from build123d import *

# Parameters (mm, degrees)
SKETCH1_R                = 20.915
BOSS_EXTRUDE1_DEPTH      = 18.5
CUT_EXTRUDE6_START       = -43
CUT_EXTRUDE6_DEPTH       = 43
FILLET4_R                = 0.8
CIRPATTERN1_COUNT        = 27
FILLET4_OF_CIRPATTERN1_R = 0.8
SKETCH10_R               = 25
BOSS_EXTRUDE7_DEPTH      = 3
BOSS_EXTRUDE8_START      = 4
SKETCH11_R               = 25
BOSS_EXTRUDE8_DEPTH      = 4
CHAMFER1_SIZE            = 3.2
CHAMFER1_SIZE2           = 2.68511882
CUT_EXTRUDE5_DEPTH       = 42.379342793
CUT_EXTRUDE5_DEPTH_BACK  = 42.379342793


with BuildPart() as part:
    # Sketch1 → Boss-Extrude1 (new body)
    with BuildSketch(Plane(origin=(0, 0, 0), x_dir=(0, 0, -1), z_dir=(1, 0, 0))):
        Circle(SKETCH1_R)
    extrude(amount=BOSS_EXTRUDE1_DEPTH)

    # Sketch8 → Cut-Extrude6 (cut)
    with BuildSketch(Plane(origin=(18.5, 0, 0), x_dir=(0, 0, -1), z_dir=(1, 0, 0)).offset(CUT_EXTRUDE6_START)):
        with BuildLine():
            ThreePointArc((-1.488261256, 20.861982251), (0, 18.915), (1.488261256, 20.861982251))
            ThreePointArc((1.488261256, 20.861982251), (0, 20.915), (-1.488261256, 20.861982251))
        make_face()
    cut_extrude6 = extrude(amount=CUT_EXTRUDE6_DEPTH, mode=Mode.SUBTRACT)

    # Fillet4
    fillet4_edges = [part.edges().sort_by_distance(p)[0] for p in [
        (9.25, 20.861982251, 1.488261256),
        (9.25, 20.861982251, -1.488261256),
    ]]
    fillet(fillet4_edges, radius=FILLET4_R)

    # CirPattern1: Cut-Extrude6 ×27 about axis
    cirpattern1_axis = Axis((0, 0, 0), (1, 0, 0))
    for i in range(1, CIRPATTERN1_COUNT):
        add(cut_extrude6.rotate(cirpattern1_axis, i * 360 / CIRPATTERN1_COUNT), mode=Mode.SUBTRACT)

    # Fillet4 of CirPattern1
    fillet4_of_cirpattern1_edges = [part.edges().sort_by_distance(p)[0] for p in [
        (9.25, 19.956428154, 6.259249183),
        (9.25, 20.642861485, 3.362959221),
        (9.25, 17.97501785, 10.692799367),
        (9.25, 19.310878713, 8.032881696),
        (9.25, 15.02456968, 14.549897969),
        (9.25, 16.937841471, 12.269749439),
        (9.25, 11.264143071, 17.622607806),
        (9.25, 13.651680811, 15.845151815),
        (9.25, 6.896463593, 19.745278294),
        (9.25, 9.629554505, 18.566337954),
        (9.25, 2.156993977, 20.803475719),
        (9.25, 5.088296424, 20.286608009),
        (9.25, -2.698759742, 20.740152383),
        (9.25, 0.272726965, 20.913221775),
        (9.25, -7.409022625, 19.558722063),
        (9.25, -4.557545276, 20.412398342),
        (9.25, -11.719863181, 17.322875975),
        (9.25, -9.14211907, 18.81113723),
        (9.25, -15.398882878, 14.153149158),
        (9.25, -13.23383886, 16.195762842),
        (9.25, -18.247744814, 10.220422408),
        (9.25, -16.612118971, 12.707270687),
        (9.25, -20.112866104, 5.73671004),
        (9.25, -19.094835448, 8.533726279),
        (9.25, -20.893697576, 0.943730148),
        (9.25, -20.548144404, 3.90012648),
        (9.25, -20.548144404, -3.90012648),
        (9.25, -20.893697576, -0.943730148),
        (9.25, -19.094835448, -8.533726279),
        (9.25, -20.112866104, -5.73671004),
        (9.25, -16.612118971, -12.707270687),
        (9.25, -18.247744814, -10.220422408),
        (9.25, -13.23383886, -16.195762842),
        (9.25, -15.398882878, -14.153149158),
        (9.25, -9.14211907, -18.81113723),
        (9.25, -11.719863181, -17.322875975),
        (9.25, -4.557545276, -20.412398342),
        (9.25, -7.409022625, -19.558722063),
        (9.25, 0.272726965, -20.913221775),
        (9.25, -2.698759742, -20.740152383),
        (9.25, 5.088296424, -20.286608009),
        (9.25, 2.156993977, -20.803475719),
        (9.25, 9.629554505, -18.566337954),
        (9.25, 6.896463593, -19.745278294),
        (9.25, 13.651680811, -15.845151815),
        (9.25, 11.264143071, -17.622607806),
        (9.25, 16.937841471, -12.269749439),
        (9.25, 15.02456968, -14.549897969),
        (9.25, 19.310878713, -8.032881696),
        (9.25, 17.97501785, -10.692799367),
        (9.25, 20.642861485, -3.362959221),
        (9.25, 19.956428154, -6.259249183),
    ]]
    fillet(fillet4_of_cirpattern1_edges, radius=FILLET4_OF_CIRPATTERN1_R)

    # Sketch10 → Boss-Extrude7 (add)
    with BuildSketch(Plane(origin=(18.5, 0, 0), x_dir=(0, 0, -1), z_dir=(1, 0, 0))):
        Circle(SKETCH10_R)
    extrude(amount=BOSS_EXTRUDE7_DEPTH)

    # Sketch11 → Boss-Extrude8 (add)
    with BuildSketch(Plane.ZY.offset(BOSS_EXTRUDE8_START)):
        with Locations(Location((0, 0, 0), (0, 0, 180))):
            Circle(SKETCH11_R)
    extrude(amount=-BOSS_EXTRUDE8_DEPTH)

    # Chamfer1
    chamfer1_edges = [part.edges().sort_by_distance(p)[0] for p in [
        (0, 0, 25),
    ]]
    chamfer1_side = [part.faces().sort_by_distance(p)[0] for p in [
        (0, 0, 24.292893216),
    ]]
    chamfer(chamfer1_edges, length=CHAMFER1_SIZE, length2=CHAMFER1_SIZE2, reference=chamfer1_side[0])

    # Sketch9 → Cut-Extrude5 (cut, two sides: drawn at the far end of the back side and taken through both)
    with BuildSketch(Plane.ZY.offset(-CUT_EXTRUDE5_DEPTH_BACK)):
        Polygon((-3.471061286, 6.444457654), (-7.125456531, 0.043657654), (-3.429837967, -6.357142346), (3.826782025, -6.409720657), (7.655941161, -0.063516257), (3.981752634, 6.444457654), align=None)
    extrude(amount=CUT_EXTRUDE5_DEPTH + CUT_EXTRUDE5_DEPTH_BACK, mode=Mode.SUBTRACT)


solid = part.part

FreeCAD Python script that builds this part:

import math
import FreeCAD as App
import Part
import Sketcher

V = App.Vector
Q = App.Units.Quantity


def edges_at(feature, points):
    """Names of the edges that pass closest to the given points."""
    edges = feature.Shape.Edges
    near = lambda p: min(range(len(edges)), key=lambda i: edges[i].distToShape(Part.Vertex(*p))[0])
    return sorted({f"Edge{near(p) + 1}" for p in points})

doc = App.newDocument("Part")
body = doc.addObject("PartDesign::Body", "Body")

# Sketch on YZ plane
sketch1 = body.newObject("Sketcher::SketchObject", "Sketch")
sketch1.AttachmentSupport = (doc.getObject("YZ_Plane"), [""])
sketch1.MapMode = "FlatFace"
sketch1.addGeometry(Part.Circle(V(0, 0, 0), V(0, 0, 1), 21), False)
sketch1.addConstraint([
    Sketcher.Constraint("Coincident", 0, 3, -1, 1),
    Sketcher.Constraint("Diameter", 0, Q("41.83 mm")),
])
pad1 = body.newObject("PartDesign::Pad", "Pad")
pad1.Profile = sketch1
pad1.Length = 18.5

# Sketch on YZ plane
sketch2 = body.newObject("Sketcher::SketchObject", "Sketch001")
sketch2.AttachmentSupport = (doc.getObject("YZ_Plane"), [""])
sketch2.MapMode = "FlatFace"
sketch2.AttachmentOffset = App.Placement(V(0, 0, -24.5), App.Rotation())
sketch2.addGeometry([
    Part.ArcOfCircle(Part.Circle(V(20.5, 0, 0), V(0, 0, 1), 1.5), math.radians(75), math.radians(285)),
    Part.ArcOfCircle(Part.Circle(V(0, 0, 0), V(0, 0, 1), 20.9), math.radians(-4.08), math.radians(4.08)),
], False)
sketch2.addConstraint([
    Sketcher.Constraint("Coincident", 0, 1, 1, 2),
    Sketcher.Constraint("Coincident", 1, 1, 0, 2),
    Sketcher.Constraint("Coincident", 1, 3, -1, 1),
    Sketcher.Constraint("PointOnObject", 0, 3, -1),
    Sketcher.Constraint("Radius", 1, Q("20.915 mm")),
    Sketcher.Constraint("Radius", 0, Q("1.5423 mm")),
    Sketcher.Constraint("DistanceX", -1, 1, 0, 3, Q("20.4573 mm")),
])
pocket1 = body.newObject("PartDesign::Pocket", "Pocket")
pocket1.Profile = sketch2
pocket1.Length = 43
pocket1.Reversed = True
doc.recompute()

fillet = body.newObject("PartDesign::Fillet", "Fillet")
fillet.Base = (pocket1, edges_at(pocket1, [(9.25, 20.862, 1.488), (9.25, 20.862, -1.488)]))
fillet.Radius = 0.8
doc.recompute()

polarpattern = body.newObject("PartDesign::PolarPattern", "PolarPattern")
polarpattern.Originals = [pocket1]
polarpattern.Axis = (doc.getObject("X_Axis"), [""])
polarpattern.Angle = 360
polarpattern.Occurrences = 27
body.Tip = polarpattern
doc.recompute()

fillet2 = body.newObject("PartDesign::Fillet", "Fillet001")
fillet2.Base = (polarpattern, edges_at(polarpattern, [
    (9.25, 19.956, 6.259),
    (9.25, 20.643, 3.363),
    (9.25, 17.975, 10.693),
    (9.25, 19.311, 8.033),
    (9.25, 15.025, 14.55),
    (9.25, 16.938, 12.27),
    (9.25, 11.264, 17.623),
    (9.25, 13.652, 15.845),
    (9.25, 6.896, 19.745),
    (9.25, 9.63, 18.566),
    (9.25, 2.157, 20.803),
    (9.25, 5.088, 20.287),
    (9.25, -2.699, 20.74),
    (9.25, 0.273, 20.913),
    (9.25, -7.409, 19.559),
    (9.25, -4.558, 20.412),
    (9.25, -11.72, 17.323),
    (9.25, -9.142, 18.811),
    (9.25, -15.399, 14.153),
    (9.25, -13.234, 16.196),
    (9.25, -18.248, 10.22),
    (9.25, -16.612, 12.707),
    (9.25, -20.113, 5.737),
    (9.25, -19.095, 8.534),
    (9.25, -20.894, 0.944),
    (9.25, -20.548, 3.9),
    (9.25, -20.548, -3.9),
    (9.25, -20.894, -0.944),
    (9.25, -19.095, -8.534),
    (9.25, -20.113, -5.737),
    (9.25, -16.612, -12.707),
    (9.25, -18.248, -10.22),
    (9.25, -13.234, -16.196),
    (9.25, -15.399, -14.153),
    (9.25, -9.142, -18.811),
    (9.25, -11.72, -17.323),
    (9.25, -4.558, -20.412),
    (9.25, -7.409, -19.559),
    (9.25, 0.273, -20.913),
    (9.25, -2.699, -20.74),
    (9.25, 5.088, -20.287),
    (9.25, 2.157, -20.803),
    (9.25, 9.63, -18.566),
    (9.25, 6.896, -19.745),
    (9.25, 13.652, -15.845),
    (9.25, 11.264, -17.623),
    (9.25, 16.938, -12.27),
    (9.25, 15.025, -14.55),
    (9.25, 19.311, -8.033),
    (9.25, 17.975, -10.693),
    (9.25, 20.643, -3.363),
    (9.25, 19.956, -6.259),
]))
fillet2.Radius = 0.8

# Sketch on YZ plane
sketch3 = body.newObject("Sketcher::SketchObject", "Sketch002")
sketch3.AttachmentSupport = (doc.getObject("YZ_Plane"), [""])
sketch3.MapMode = "FlatFace"
sketch3.AttachmentOffset = App.Placement(V(0, 0, 18.5), App.Rotation())
sketch3.addGeometry(Part.Circle(V(0, 0, 0), V(0, 0, 1), 25), False)
sketch3.addConstraint([
    Sketcher.Constraint("Coincident", 0, 3, -1, 1),
    Sketcher.Constraint("Diameter", 0, Q("50 mm")),
])
pad2 = body.newObject("PartDesign::Pad", "Pad001")
pad2.Profile = sketch3
pad2.Length = 3

# Sketch on YZ plane
sketch4 = body.newObject("Sketcher::SketchObject", "Sketch003")
sketch4.AttachmentSupport = (doc.getObject("YZ_Plane"), [""])
sketch4.MapMode = "FlatFace"
sketch4.AttachmentOffset = App.Placement(V(0, 0, -4), App.Rotation())
sketch4.addGeometry(Part.Circle(V(0, 0, 0), V(0, 0, 1), 25), False)
sketch4.addConstraint([
    Sketcher.Constraint("Coincident", 0, 3, -1, 1),
    Sketcher.Constraint("Diameter", 0, Q("50 mm")),
])
pad3 = body.newObject("PartDesign::Pad", "Pad002")
pad3.Profile = sketch4
pad3.Length = 4
doc.recompute()

chamfer = body.newObject("PartDesign::Chamfer", "Chamfer")
chamfer.Base = (pad3, edges_at(pad3, [(0, 0, 25)]))
chamfer.ChamferType = "Two distances"
chamfer.Size = 3.2
chamfer.Size2 = 2.685119

# Sketch on YZ plane
sketch5 = body.newObject("Sketcher::SketchObject", "Sketch004")
sketch5.AttachmentSupport = (doc.getObject("YZ_Plane"), [""])
sketch5.MapMode = "FlatFace"
sketch5.addGeometry([
    Part.LineSegment(V(6, -3, 0), V(0, -7, 0)),  # 0
    Part.LineSegment(V(0, -7, 0), V(-6, -3, 0)),  # 1
    Part.LineSegment(V(-6, -3, 0), V(-6, 4, 0)),  # 2
    Part.LineSegment(V(-6, 4, 0), V(0, 8, 0)),  # 3
    Part.LineSegment(V(0, 8, 0), V(6, 4, 0)),  # 4
    Part.LineSegment(V(6, 4, 0), V(6, -3, 0)),  # 5
], False)
sketch5.addConstraint([
    Sketcher.Constraint("Coincident", 0, 2, 1, 1),
    Sketcher.Constraint("Coincident", 1, 2, 2, 1),
    Sketcher.Constraint("Coincident", 2, 2, 3, 1),
    Sketcher.Constraint("Coincident", 3, 2, 4, 1),
    Sketcher.Constraint("Coincident", 4, 2, 5, 1),
    Sketcher.Constraint("Coincident", 5, 2, 0, 1),
    Sketcher.Constraint("Vertical", 5),
    Sketcher.Constraint("DistanceX", 1, 2, 0, 2, Q("6.4008 mm")),
    Sketcher.Constraint("DistanceX", 0, 2, 4, 2, Q("6.4008 mm")),
    Sketcher.Constraint("Distance", 0, Q("7.370539 mm")),
    Sketcher.Constraint("Distance", 2, Q("7.25681 mm")),
    Sketcher.Constraint("DistanceY", 5, 2, 5, 1, Q("7.452814 mm")),
    Sketcher.Constraint("DistanceX", 2, 2, -1, 1, Q("6.409721 mm")),
    Sketcher.Constraint("DistanceY", -1, 1, 3, 2, Q("7.655941 mm")),
    Sketcher.Constraint("DistanceY", 5, 2, -1, 1, Q("3.471061 mm")),
    Sketcher.Constraint("DistanceY", 0, 2, 1, 2, Q("3.695619 mm")),
    Sketcher.Constraint("DistanceX", 2, 2, 1, 2, Q("0.052578 mm")),
    Sketcher.Constraint("Distance", 3, Q("7.411934 mm")),
])
pocket2 = body.newObject("PartDesign::Pocket", "Pocket001")
pocket2.Profile = sketch5
pocket2.Type = "ThroughAll"
pocket2.Midplane = True

doc.recompute()
